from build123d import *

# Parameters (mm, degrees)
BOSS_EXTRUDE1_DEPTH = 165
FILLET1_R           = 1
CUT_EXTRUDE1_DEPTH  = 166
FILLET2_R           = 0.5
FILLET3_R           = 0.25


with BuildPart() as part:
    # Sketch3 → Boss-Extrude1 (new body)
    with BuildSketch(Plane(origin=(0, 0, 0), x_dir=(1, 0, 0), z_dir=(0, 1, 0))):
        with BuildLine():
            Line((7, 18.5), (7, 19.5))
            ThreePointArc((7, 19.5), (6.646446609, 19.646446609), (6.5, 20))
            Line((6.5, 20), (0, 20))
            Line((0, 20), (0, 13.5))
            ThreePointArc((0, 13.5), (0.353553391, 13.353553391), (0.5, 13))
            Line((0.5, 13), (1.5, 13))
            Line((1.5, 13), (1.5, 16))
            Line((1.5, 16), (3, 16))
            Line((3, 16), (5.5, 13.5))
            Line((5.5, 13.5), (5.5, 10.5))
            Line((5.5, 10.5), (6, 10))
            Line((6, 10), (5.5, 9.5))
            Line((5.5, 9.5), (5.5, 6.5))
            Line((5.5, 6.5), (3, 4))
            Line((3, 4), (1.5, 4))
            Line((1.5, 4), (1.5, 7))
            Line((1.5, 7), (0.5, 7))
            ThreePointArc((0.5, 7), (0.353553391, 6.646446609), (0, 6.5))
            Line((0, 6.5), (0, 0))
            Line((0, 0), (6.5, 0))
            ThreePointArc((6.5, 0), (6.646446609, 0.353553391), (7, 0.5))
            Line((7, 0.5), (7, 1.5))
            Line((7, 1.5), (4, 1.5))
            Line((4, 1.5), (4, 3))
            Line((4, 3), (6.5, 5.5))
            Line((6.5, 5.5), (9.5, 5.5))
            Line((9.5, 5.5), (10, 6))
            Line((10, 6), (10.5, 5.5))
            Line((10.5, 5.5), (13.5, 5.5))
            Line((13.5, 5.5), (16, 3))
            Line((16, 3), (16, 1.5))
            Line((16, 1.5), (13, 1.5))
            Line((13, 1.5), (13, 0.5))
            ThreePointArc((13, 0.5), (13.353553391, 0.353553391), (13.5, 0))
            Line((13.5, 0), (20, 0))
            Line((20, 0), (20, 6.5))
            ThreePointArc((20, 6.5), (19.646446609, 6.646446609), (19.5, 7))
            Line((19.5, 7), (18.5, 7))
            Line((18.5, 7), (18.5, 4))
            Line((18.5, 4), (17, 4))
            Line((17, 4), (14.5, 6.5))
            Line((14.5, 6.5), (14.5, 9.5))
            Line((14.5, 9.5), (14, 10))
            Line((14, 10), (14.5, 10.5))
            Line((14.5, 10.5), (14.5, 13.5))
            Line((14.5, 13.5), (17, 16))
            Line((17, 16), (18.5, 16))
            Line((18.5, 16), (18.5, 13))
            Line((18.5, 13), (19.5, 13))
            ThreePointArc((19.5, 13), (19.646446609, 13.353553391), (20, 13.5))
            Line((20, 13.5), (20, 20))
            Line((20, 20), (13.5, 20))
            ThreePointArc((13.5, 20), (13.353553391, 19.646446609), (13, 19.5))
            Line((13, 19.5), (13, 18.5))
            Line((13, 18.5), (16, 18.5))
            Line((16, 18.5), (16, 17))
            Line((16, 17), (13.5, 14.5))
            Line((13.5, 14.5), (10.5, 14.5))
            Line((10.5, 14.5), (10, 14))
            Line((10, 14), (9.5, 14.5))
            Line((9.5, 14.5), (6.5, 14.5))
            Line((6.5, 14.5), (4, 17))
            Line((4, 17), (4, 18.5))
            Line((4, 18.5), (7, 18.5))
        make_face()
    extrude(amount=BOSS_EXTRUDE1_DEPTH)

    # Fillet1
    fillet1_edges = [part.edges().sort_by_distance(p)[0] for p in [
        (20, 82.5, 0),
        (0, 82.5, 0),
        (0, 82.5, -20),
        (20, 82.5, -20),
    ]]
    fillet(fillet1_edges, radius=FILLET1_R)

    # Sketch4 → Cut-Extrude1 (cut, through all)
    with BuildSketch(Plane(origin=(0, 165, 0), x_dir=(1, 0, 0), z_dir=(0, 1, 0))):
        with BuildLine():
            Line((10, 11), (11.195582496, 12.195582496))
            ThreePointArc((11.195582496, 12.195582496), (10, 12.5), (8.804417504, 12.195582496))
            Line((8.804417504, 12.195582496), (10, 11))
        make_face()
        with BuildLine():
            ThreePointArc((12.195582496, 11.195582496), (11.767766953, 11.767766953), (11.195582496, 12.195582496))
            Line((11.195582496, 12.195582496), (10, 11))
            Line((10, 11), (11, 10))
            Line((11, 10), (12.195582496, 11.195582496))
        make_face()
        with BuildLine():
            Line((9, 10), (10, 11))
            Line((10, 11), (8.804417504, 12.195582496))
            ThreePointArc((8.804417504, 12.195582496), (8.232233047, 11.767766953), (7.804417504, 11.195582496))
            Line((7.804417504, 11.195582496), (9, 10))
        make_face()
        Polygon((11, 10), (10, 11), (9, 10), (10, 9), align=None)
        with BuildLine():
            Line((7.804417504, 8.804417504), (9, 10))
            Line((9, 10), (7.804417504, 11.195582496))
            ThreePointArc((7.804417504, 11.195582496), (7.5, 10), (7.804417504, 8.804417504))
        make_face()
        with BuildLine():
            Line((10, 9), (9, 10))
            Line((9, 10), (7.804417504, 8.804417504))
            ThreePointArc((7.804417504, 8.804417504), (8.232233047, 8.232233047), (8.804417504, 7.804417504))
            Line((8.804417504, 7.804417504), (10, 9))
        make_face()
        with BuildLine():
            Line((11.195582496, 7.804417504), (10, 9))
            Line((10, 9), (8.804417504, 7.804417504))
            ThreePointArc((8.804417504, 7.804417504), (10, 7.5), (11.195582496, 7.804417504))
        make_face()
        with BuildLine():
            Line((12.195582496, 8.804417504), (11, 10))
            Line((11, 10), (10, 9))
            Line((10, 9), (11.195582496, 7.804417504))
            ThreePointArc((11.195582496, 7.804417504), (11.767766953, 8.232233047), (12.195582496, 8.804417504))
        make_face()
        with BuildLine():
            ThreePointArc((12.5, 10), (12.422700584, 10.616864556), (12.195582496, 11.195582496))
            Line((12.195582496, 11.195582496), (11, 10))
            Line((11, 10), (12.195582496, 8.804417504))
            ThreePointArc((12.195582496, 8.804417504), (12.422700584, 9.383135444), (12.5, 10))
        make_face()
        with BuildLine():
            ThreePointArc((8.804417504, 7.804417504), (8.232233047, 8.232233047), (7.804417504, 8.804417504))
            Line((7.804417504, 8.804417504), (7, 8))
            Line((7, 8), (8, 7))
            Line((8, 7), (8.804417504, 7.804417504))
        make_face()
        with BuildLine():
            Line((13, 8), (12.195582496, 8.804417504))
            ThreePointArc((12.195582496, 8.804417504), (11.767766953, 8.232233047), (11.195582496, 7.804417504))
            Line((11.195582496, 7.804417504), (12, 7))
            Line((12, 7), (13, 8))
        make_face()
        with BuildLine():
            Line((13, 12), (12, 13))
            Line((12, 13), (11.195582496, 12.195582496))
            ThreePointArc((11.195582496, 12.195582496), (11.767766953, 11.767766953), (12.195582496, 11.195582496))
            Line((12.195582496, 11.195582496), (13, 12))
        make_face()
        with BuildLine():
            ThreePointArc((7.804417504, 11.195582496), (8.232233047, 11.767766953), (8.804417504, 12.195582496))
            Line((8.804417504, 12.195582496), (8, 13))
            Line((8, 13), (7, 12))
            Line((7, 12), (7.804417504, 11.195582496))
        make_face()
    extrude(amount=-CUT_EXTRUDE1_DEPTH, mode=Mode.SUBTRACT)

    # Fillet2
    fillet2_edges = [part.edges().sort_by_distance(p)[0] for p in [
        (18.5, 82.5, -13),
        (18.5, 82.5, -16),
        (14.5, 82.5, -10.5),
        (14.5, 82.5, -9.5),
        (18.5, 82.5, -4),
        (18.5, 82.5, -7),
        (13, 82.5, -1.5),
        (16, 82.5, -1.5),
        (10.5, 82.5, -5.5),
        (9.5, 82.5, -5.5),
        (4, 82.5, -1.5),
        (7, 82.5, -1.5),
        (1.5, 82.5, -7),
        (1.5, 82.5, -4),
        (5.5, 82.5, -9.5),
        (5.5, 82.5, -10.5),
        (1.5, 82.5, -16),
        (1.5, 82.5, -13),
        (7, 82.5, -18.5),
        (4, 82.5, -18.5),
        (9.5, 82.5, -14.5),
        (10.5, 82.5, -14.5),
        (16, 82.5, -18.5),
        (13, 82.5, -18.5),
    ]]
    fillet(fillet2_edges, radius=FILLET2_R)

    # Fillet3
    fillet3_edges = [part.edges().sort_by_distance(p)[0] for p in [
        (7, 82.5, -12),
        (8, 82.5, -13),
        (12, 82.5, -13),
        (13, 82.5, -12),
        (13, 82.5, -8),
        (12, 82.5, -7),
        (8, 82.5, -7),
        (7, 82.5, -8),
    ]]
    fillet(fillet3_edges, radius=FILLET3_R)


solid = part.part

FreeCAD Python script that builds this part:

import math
import FreeCAD as App
import Part
import Sketcher


def edges_at(feature, points):
    """Names of the edges that pass closest to the given points."""
    edges = feature.Shape.Edges
    near = lambda p: min(range(len(edges)), key=lambda i: edges[i].distToShape(Part.Vertex(*p))[0])
    return sorted({f"Edge{near(p) + 1}" for p in points})

doc = App.newDocument("Part")
body = doc.addObject("PartDesign::Body", "Body")

# Sketch on XZ plane
sketch1 = body.newObject("Sketcher::SketchObject", "Sketch")
sketch1.AttachmentSupport = (doc.getObject("XZ_Plane"), [""])
sketch1.MapMode = "FlatFace"
sketch1.addGeometry(Part.LineSegment(App.Vector(7, -18.5, 0), App.Vector(7, -19.5, 0)), False)
sketch1.addGeometry(Part.ArcOfCircle(Part.Circle(App.Vector(7, -20, 0), App.Vector(0, 0, 1), 0.5), math.radians(90), math.radians(180)), False)
sketch1.addGeometry(Part.LineSegment(App.Vector(6.5, -20, 0), App.Vector(0, -20, 0)), False)
sketch1.addGeometry(Part.LineSegment(App.Vector(0, -20, 0), App.Vector(0, -13.5, 0)), False)
sketch1.addGeometry(Part.ArcOfCircle(Part.Circle(App.Vector(0, -13, 0), App.Vector(0, 0, 1), 0.5), math.radians(-90), math.radians(0)), False)
sketch1.addGeometry(Part.LineSegment(App.Vector(0.5, -13, 0), App.Vector(1.5, -13, 0)), False)
sketch1.addGeometry(Part.LineSegment(App.Vector(1.5, -13, 0), App.Vector(1.5, -16, 0)), False)
sketch1.addGeometry(Part.LineSegment(App.Vector(1.5, -16, 0), App.Vector(3, -16, 0)), False)
sketch1.addGeometry(Part.LineSegment(App.Vector(3, -16, 0), App.Vector(5.5, -13.5, 0)), False)
sketch1.addGeometry(Part.LineSegment(App.Vector(5.5, -13.5, 0), App.Vector(5.5, -10.5, 0)), False)
sketch1.addGeometry(Part.LineSegment(App.Vector(5.5, -10.5, 0), App.Vector(6, -10, 0)), False)
sketch1.addGeometry(Part.LineSegment(App.Vector(6, -10, 0), App.Vector(5.5, -9.5, 0)), False)
sketch1.addGeometry(Part.LineSegment(App.Vector(5.5, -9.5, 0), App.Vector(5.5, -6.5, 0)), False)
sketch1.addGeometry(Part.LineSegment(App.Vector(5.5, -6.5, 0), App.Vector(3, -4, 0)), False)
sketch1.addGeometry(Part.LineSegment(App.Vector(3, -4, 0), App.Vector(1.5, -4, 0)), False)
sketch1.addGeometry(Part.LineSegment(App.Vector(1.5, -4, 0), App.Vector(1.5, -7, 0)), False)
sketch1.addGeometry(Part.LineSegment(App.Vector(1.5, -7, 0), App.Vector(0.5, -7, 0)), False)
sketch1.addGeometry(Part.ArcOfCircle(Part.Circle(App.Vector(0, -7, 0), App.Vector(0, 0, 1), 0.5), math.radians(0), math.radians(90)), False)
sketch1.addGeometry(Part.LineSegment(App.Vector(0, -6.5, 0), App.Vector(0, 0, 0)), False)
sketch1.addGeometry(Part.LineSegment(App.Vector(0, 0, 0), App.Vector(6.5, 0, 0)), False)
sketch1.addGeometry(Part.ArcOfCircle(Part.Circle(App.Vector(7, 0, 0), App.Vector(0, 0, 1), 0.5), math.radians(180), math.radians(270)), False)
sketch1.addGeometry(Part.LineSegment(App.Vector(7, -0.5, 0), App.Vector(7, -1.5, 0)), False)
sketch1.addGeometry(Part.LineSegment(App.Vector(7, -1.5, 0), App.Vector(4, -1.5, 0)), False)
sketch1.addGeometry(Part.LineSegment(App.Vector(4, -1.5, 0), App.Vector(4, -3, 0)), False)
sketch1.addGeometry(Part.LineSegment(App.Vector(4, -3, 0), App.Vector(6.5, -5.5, 0)), False)
sketch1.addGeometry(Part.LineSegment(App.Vector(6.5, -5.5, 0), App.Vector(9.5, -5.5, 0)), False)
sketch1.addGeometry(Part.LineSegment(App.Vector(9.5, -5.5, 0), App.Vector(10, -6, 0)), False)
sketch1.addGeometry(Part.LineSegment(App.Vector(10, -6, 0), App.Vector(10.5, -5.5, 0)), False)
sketch1.addGeometry(Part.LineSegment(App.Vector(10.5, -5.5, 0), App.Vector(13.5, -5.5, 0)), False)
sketch1.addGeometry(Part.LineSegment(App.Vector(13.5, -5.5, 0), App.Vector(16, -3, 0)), False)
sketch1.addGeometry(Part.LineSegment(App.Vector(16, -3, 0), App.Vector(16, -1.5, 0)), False)
sketch1.addGeometry(Part.LineSegment(App.Vector(16, -1.5, 0), App.Vector(13, -1.5, 0)), False)
sketch1.addGeometry(Part.LineSegment(App.Vector(13, -1.5, 0), App.Vector(13, -0.5, 0)), False)
sketch1.addGeometry(Part.ArcOfCircle(Part.Circle(App.Vector(13, 0, 0), App.Vector(0, 0, 1), 0.5), math.radians(-90), math.radians(0)), False)
sketch1.addGeometry(Part.LineSegment(App.Vector(13.5, 0, 0), App.Vector(20, 0, 0)), False)
sketch1.addGeometry(Part.LineSegment(App.Vector(20, 0, 0), App.Vector(20, -6.5, 0)), False)
sketch1.addGeometry(Part.ArcOfCircle(Part.Circle(App.Vector(20, -7, 0), App.Vector(0, 0, 1), 0.5), math.radians(90), math.radians(180)), False)
sketch1.addGeometry(Part.LineSegment(App.Vector(19.5, -7, 0), App.Vector(18.5, -7, 0)), False)
sketch1.addGeometry(Part.LineSegment(App.Vector(18.5, -7, 0), App.Vector(18.5, -4, 0)), False)
sketch1.addGeometry(Part.LineSegment(App.Vector(18.5, -4, 0), App.Vector(17, -4, 0)), False)
sketch1.addGeometry(Part.LineSegment(App.Vector(17, -4, 0), App.Vector(14.5, -6.5, 0)), False)
sketch1.addGeometry(Part.LineSegment(App.Vector(14.5, -6.5, 0), App.Vector(14.5, -9.5, 0)), False)
sketch1.addGeometry(Part.LineSegment(App.Vector(14.5, -9.5, 0), App.Vector(14, -10, 0)), False)
sketch1.addGeometry(Part.LineSegment(App.Vector(14, -10, 0), App.Vector(14.5, -10.5, 0)), False)
sketch1.addGeometry(Part.LineSegment(App.Vector(14.5, -10.5, 0), App.Vector(14.5, -13.5, 0)), False)
sketch1.addGeometry(Part.LineSegment(App.Vector(14.5, -13.5, 0), App.Vector(17, -16, 0)), False)
sketch1.addGeometry(Part.LineSegment(App.Vector(17, -16, 0), App.Vector(18.5, -16, 0)), False)
sketch1.addGeometry(Part.LineSegment(App.Vector(18.5, -16, 0), App.Vector(18.5, -13, 0)), False)
sketch1.addGeometry(Part.LineSegment(App.Vector(18.5, -13, 0), App.Vector(19.5, -13, 0)), False)
sketch1.addGeometry(Part.ArcOfCircle(Part.Circle(App.Vector(20, -13, 0), App.Vector(0, 0, 1), 0.5), math.radians(180), math.radians(270)), False)
sketch1.addGeometry(Part.LineSegment(App.Vector(20, -13.5, 0), App.Vector(20, -20, 0)), False)
sketch1.addGeometry(Part.LineSegment(App.Vector(20, -20, 0), App.Vector(13.5, -20, 0)), False)
sketch1.addGeometry(Part.ArcOfCircle(Part.Circle(App.Vector(13, -20, 0), App.Vector(0, 0, 1), 0.5), math.radians(0), math.radians(90)), False)
sketch1.addGeometry(Part.LineSegment(App.Vector(13, -19.5, 0), App.Vector(13, -18.5, 0)), False)
sketch1.addGeometry(Part.LineSegment(App.Vector(13, -18.5, 0), App.Vector(16, -18.5, 0)), False)
sketch1.addGeometry(Part.LineSegment(App.Vector(16, -18.5, 0), App.Vector(16, -17, 0)), False)
sketch1.addGeometry(Part.LineSegment(App.Vector(16, -17, 0), App.Vector(13.5, -14.5, 0)), False)
sketch1.addGeometry(Part.LineSegment(App.Vector(13.5, -14.5, 0), App.Vector(10.5, -14.5, 0)), False)
sketch1.addGeometry(Part.LineSegment(App.Vector(10.5, -14.5, 0), App.Vector(10, -14, 0)), False)
sketch1.addGeometry(Part.LineSegment(App.Vector(10, -14, 0), App.Vector(9.5, -14.5, 0)), False)
sketch1.addGeometry(Part.LineSegment(App.Vector(9.5, -14.5, 0), App.Vector(6.5, -14.5, 0)), False)
sketch1.addGeometry(Part.LineSegment(App.Vector(6.5, -14.5, 0), App.Vector(4, -17, 0)), False)
sketch1.addGeometry(Part.LineSegment(App.Vector(4, -17, 0), App.Vector(4, -18.5, 0)), False)
sketch1.addGeometry(Part.LineSegment(App.Vector(4, -18.5, 0), App.Vector(7, -18.5, 0)), False)
sketch1.addConstraint(Sketcher.Constraint("Coincident", 0, 2, 1, 1))
sketch1.addConstraint(Sketcher.Constraint("Coincident", 1, 2, 2, 1))
sketch1.addConstraint(Sketcher.Constraint("Coincident", 2, 2, 3, 1))
sketch1.addConstraint(Sketcher.Constraint("Coincident", 3, 2, 4, 1))
sketch1.addConstraint(Sketcher.Constraint("Coincident", 4, 2, 5, 1))
sketch1.addConstraint(Sketcher.Constraint("Coincident", 5, 2, 6, 1))
sketch1.addConstraint(Sketcher.Constraint("Coincident", 6, 2, 7, 1))
sketch1.addConstraint(Sketcher.Constraint("Coincident", 7, 2, 8, 1))
sketch1.addConstraint(Sketcher.Constraint("Coincident", 8, 2, 9, 1))
sketch1.addConstraint(Sketcher.Constraint("Coincident", 9, 2, 10, 1))
sketch1.addConstraint(Sketcher.Constraint("Coincident", 10, 2, 11, 1))
sketch1.addConstraint(Sketcher.Constraint("Coincident", 11, 2, 12, 1))
sketch1.addConstraint(Sketcher.Constraint("Coincident", 12, 2, 13, 1))
sketch1.addConstraint(Sketcher.Constraint("Coincident", 13, 2, 14, 1))
sketch1.addConstraint(Sketcher.Constraint("Coincident", 14, 2, 15, 1))
sketch1.addConstraint(Sketcher.Constraint("Coincident", 15, 2, 16, 1))
sketch1.addConstraint(Sketcher.Constraint("Coincident", 16, 2, 17, 1))
sketch1.addConstraint(Sketcher.Constraint("Coincident", 17, 2, 18, 1))
sketch1.addConstraint(Sketcher.Constraint("Coincident", 18, 2, 19, 1))
sketch1.addConstraint(Sketcher.Constraint("Coincident", 19, 2, 20, 1))
sketch1.addConstraint(Sketcher.Constraint("Coincident", 20, 2, 21, 1))
sketch1.addConstraint(Sketcher.Constraint("Coincident", 21, 2, 22, 1))
sketch1.addConstraint(Sketcher.Constraint("Coincident", 22, 2, 23, 1))
sketch1.addConstraint(Sketcher.Constraint("Coincident", 23, 2, 24, 1))
sketch1.addConstraint(Sketcher.Constraint("Coincident", 24, 2, 25, 1))
sketch1.addConstraint(Sketcher.Constraint("Coincident", 25, 2, 26, 1))
sketch1.addConstraint(Sketcher.Constraint("Coincident", 26, 2, 27, 1))
sketch1.addConstraint(Sketcher.Constraint("Coincident", 27, 2, 28, 1))
sketch1.addConstraint(Sketcher.Constraint("Coincident", 28, 2, 29, 1))
sketch1.addConstraint(Sketcher.Constraint("Coincident", 29, 2, 30, 1))
sketch1.addConstraint(Sketcher.Constraint("Coincident", 30, 2, 31, 1))
sketch1.addConstraint(Sketcher.Constraint("Coincident", 31, 2, 32, 1))
sketch1.addConstraint(Sketcher.Constraint("Coincident", 32, 2, 33, 1))
sketch1.addConstraint(Sketcher.Constraint("Coincident", 33, 2, 34, 1))
sketch1.addConstraint(Sketcher.Constraint("Coincident", 34, 2, 35, 1))
sketch1.addConstraint(Sketcher.Constraint("Coincident", 35, 2, 36, 1))
sketch1.addConstraint(Sketcher.Constraint("Coincident", 36, 2, 37, 1))
sketch1.addConstraint(Sketcher.Constraint("Coincident", 37, 2, 38, 1))
sketch1.addConstraint(Sketcher.Constraint("Coincident", 38, 2, 39, 1))
sketch1.addConstraint(Sketcher.Constraint("Coincident", 39, 2, 40, 1))
sketch1.addConstraint(Sketcher.Constraint("Coincident", 40, 2, 41, 1))
sketch1.addConstraint(Sketcher.Constraint("Coincident", 41, 2, 42, 1))
sketch1.addConstraint(Sketcher.Constraint("Coincident", 42, 2, 43, 1))
sketch1.addConstraint(Sketcher.Constraint("Coincident", 43, 2, 44, 1))
sketch1.addConstraint(Sketcher.Constraint("Coincident", 44, 2, 45, 1))
sketch1.addConstraint(Sketcher.Constraint("Coincident", 45, 2, 46, 1))
sketch1.addConstraint(Sketcher.Constraint("Coincident", 46, 2, 47, 1))
sketch1.addConstraint(Sketcher.Constraint("Coincident", 47, 2, 48, 1))
sketch1.addConstraint(Sketcher.Constraint("Coincident", 48, 2, 49, 1))
sketch1.addConstraint(Sketcher.Constraint("Coincident", 49, 2, 50, 1))
sketch1.addConstraint(Sketcher.Constraint("Coincident", 50, 2, 51, 1))
sketch1.addConstraint(Sketcher.Constraint("Coincident", 51, 2, 52, 1))
sketch1.addConstraint(Sketcher.Constraint("Coincident", 52, 2, 53, 1))
sketch1.addConstraint(Sketcher.Constraint("Coincident", 53, 2, 54, 1))
sketch1.addConstraint(Sketcher.Constraint("Coincident", 54, 2, 55, 1))
sketch1.addConstraint(Sketcher.Constraint("Coincident", 55, 2, 56, 1))
sketch1.addConstraint(Sketcher.Constraint("Coincident", 56, 2, 57, 1))
sketch1.addConstraint(Sketcher.Constraint("Coincident", 57, 2, 58, 1))
sketch1.addConstraint(Sketcher.Constraint("Coincident", 58, 2, 59, 1))
sketch1.addConstraint(Sketcher.Constraint("Coincident", 59, 2, 60, 1))
sketch1.addConstraint(Sketcher.Constraint("Coincident", 60, 2, 61, 1))
sketch1.addConstraint(Sketcher.Constraint("Coincident", 61, 2, 62, 1))
sketch1.addConstraint(Sketcher.Constraint("Coincident", 62, 2, 63, 1))
sketch1.addConstraint(Sketcher.Constraint("Coincident", 63, 2, 0, 1))
sketch1.addConstraint(Sketcher.Constraint("Vertical", 0))
sketch1.addConstraint(Sketcher.Constraint("Horizontal", 2))
sketch1.addConstraint(Sketcher.Constraint("Vertical", 3))
sketch1.addConstraint(Sketcher.Constraint("Horizontal", 5))
sketch1.addConstraint(Sketcher.Constraint("Vertical", 6))
sketch1.addConstraint(Sketcher.Constraint("Horizontal", 7))
sketch1.addConstraint(Sketcher.Constraint("Vertical", 9))
sketch1.addConstraint(Sketcher.Constraint("Vertical", 12))
sketch1.addConstraint(Sketcher.Constraint("Horizontal", 14))
sketch1.addConstraint(Sketcher.Constraint("Vertical", 15))
sketch1.addConstraint(Sketcher.Constraint("Horizontal", 16))
sketch1.addConstraint(Sketcher.Constraint("Vertical", 18))
sketch1.addConstraint(Sketcher.Constraint("Horizontal", 19))
sketch1.addConstraint(Sketcher.Constraint("Vertical", 21))
sketch1.addConstraint(Sketcher.Constraint("Horizontal", 22))
sketch1.addConstraint(Sketcher.Constraint("Vertical", 23))
sketch1.addConstraint(Sketcher.Constraint("Horizontal", 25))
sketch1.addConstraint(Sketcher.Constraint("Horizontal", 28))
sketch1.addConstraint(Sketcher.Constraint("Vertical", 30))
sketch1.addConstraint(Sketcher.Constraint("Horizontal", 31))
sketch1.addConstraint(Sketcher.Constraint("Vertical", 32))
sketch1.addConstraint(Sketcher.Constraint("Horizontal", 34))
sketch1.addConstraint(Sketcher.Constraint("Vertical", 35))
sketch1.addConstraint(Sketcher.Constraint("Horizontal", 37))
sketch1.addConstraint(Sketcher.Constraint("Vertical", 38))
sketch1.addConstraint(Sketcher.Constraint("Horizontal", 39))
sketch1.addConstraint(Sketcher.Constraint("Vertical", 41))
sketch1.addConstraint(Sketcher.Constraint("Vertical", 44))
sketch1.addConstraint(Sketcher.Constraint("Horizontal", 46))
sketch1.addConstraint(Sketcher.Constraint("Vertical", 47))
sketch1.addConstraint(Sketcher.Constraint("Horizontal", 48))
sketch1.addConstraint(Sketcher.Constraint("Vertical", 50))
sketch1.addConstraint(Sketcher.Constraint("Horizontal", 51))
sketch1.addConstraint(Sketcher.Constraint("Vertical", 53))
sketch1.addConstraint(Sketcher.Constraint("Horizontal", 54))
sketch1.addConstraint(Sketcher.Constraint("Vertical", 55))
sketch1.addConstraint(Sketcher.Constraint("Horizontal", 57))
sketch1.addConstraint(Sketcher.Constraint("Horizontal", 60))
sketch1.addConstraint(Sketcher.Constraint("Vertical", 62))
sketch1.addConstraint(Sketcher.Constraint("Horizontal", 63))
sketch1.addConstraint(Sketcher.Constraint("Coincident", 18, 2, -1, 1))
sketch1.addConstraint(Sketcher.Constraint("Equal", 1, 4))
sketch1.addConstraint(Sketcher.Constraint("Equal", 4, 17))
sketch1.addConstraint(Sketcher.Constraint("Equal", 17, 20))
sketch1.addConstraint(Sketcher.Constraint("Equal", 20, 33))
sketch1.addConstraint(Sketcher.Constraint("Equal", 33, 36))
sketch1.addConstraint(Sketcher.Constraint("Equal", 36, 49))
sketch1.addConstraint(Sketcher.Constraint("Equal", 49, 52))
sketch1.addConstraint(Sketcher.Constraint("PointOnObject", 4, 3, -2))
sketch1.addConstraint(Sketcher.Constraint("PointOnObject", 17, 3, -2))
sketch1.addConstraint(Sketcher.Constraint("PointOnObject", 20, 3, -1))
sketch1.addConstraint(Sketcher.Constraint("PointOnObject", 33, 3, -1))
sketch1.addConstraint(Sketcher.Constraint("PointOnObject", 2, 2, -2))
sketch1.addConstraint(Sketcher.Constraint("PointOnObject", 33, 2, -1))
sketch1.addConstraint(Sketcher.Constraint("Parallel", 8, 10))
sketch1.addConstraint(Sketcher.Constraint("Perpendicular", 10, 11))
sketch1.addConstraint(Sketcher.Constraint("Parallel", 11, 13))
sketch1.addConstraint(Sketcher.Constraint("Parallel", 13, 24))
sketch1.addConstraint(Sketcher.Constraint("Parallel", 24, 26))
sketch1.addConstraint(Sketcher.Constraint("Perpendicular", 26, 27))
sketch1.addConstraint(Sketcher.Constraint("Parallel", 27, 29))
sketch1.addConstraint(Sketcher.Constraint("Parallel", 29, 40))
sketch1.addConstraint(Sketcher.Constraint("Parallel", 40, 42))
sketch1.addConstraint(Sketcher.Constraint("Perpendicular", 42, 43))
sketch1.addConstraint(Sketcher.Constraint("Parallel", 43, 45))
sketch1.addConstraint(Sketcher.Constraint("Parallel", 45, 56))
sketch1.addConstraint(Sketcher.Constraint("Parallel", 56, 58))
sketch1.addConstraint(Sketcher.Constraint("Perpendicular", 58, 59))
sketch1.addConstraint(Sketcher.Constraint("Parallel", 59, 61))
sketch1.addConstraint(Sketcher.Constraint("Horizontal", 17, 3, 36, 3))
sketch1.addConstraint(Sketcher.Constraint("Horizontal", 4, 3, 49, 3))
sketch1.addConstraint(Sketcher.Constraint("Horizontal", 1, 3, 52, 3))
sketch1.addConstraint(Sketcher.Constraint("Horizontal", 52, 3, 1, 2))
sketch1.addConstraint(Sketcher.Constraint("Horizontal", 49, 3, 4, 2))
sketch1.addConstraint(Sketcher.Constraint("Horizontal", 3, 2, 8, 2))
sketch1.addConstraint(Sketcher.Constraint("Horizontal", 36, 3, 15, 2))
sketch1.addConstraint(Sketcher.Constraint("Horizontal", 12, 2, 17, 2))
sketch1.addConstraint(Sketcher.Constraint("Horizontal", 25, 2, 27, 2))
sketch1.addConstraint(Sketcher.Constraint("Horizontal", 23, 2, 29, 2))
sketch1.addConstraint(Sketcher.Constraint("Horizontal", 22, 2, 30, 2))
sketch1.addConstraint(Sketcher.Constraint("Horizontal", 16, 2, 36, 2))
sketch1.addConstraint(Sketcher.Constraint("Horizontal", 14, 2, 38, 2))
sketch1.addConstraint(Sketcher.Constraint("Horizontal", 35, 2, 40, 2))
sketch1.addConstraint(Sketcher.Constraint("Horizontal", 11, 2, 41, 2))
sketch1.addConstraint(Sketcher.Constraint("Horizontal", 10, 2, 42, 2))
sketch1.addConstraint(Sketcher.Constraint("Horizontal", 9, 2, 43, 2))
sketch1.addConstraint(Sketcher.Constraint("Horizontal", 8, 2, 44, 2))
sketch1.addConstraint(Sketcher.Constraint("Horizontal", 7, 2, 45, 2))
sketch1.addConstraint(Sketcher.Constraint("Horizontal", 5, 2, 47, 2))
sketch1.addConstraint(Sketcher.Constraint("Horizontal", 2, 2, 50, 2))
sketch1.addConstraint(Sketcher.Constraint("Horizontal", 57, 2, 59, 2))
sketch1.addConstraint(Sketcher.Constraint("Horizontal", 55, 2, 61, 2))
sketch1.addConstraint(Sketcher.Constraint("Horizontal", 54, 2, 62, 2))
sketch1.addConstraint(Sketcher.Constraint("Vertical", 1, 3, 20, 3))
sketch1.addConstraint(Sketcher.Constraint("Vertical", 36, 3, 49, 3))
sketch1.addConstraint(Sketcher.Constraint("Vertical", 33, 3, 52, 3))
sketch1.addConstraint(Sketcher.Constraint("Vertical", 20, 3, 0, 2))
sketch1.addConstraint(Sketcher.Constraint("Vertical", 9, 2, 11, 2))
sketch1.addConstraint(Sketcher.Constraint("Vertical", 7, 2, 13, 2))
sketch1.addConstraint(Sketcher.Constraint("Vertical", 6, 2, 14, 2))
sketch1.addConstraint(Sketcher.Constraint("Vertical", 0, 2, 20, 2))
sketch1.addConstraint(Sketcher.Constraint("Vertical", 19, 2, 24, 2))
sketch1.addConstraint(Sketcher.Constraint("Vertical", 52, 3, 31, 2))
sketch1.addConstraint(Sketcher.Constraint("Vertical", 28, 2, 33, 2))
sketch1.addConstraint(Sketcher.Constraint("Vertical", 49, 3, 34, 2))
sketch1.addConstraint(Sketcher.Constraint("Vertical", 41, 2, 43, 2))
sketch1.addConstraint(Sketcher.Constraint("Vertical", 38, 2, 46, 2))
sketch1.addConstraint(Sketcher.Constraint("Vertical", 35, 2, 49, 2))
sketch1.addConstraint(Sketcher.Constraint("Vertical", 32, 2, 52, 2))
sketch1.addConstraint(Sketcher.Constraint("Vertical", 30, 2, 54, 2))
sketch1.addConstraint(Sketcher.Constraint("Vertical", 51, 2, 56, 2))
sketch1.addConstraint(Sketcher.Constraint("Vertical", 27, 2, 57, 2))
sketch1.addConstraint(Sketcher.Constraint("Vertical", 26, 2, 58, 2))
sketch1.addConstraint(Sketcher.Constraint("Vertical", 24, 2, 60, 2))
sketch1.addConstraint(Sketcher.Constraint("Equal", 22, 25))
sketch1.addConstraint(Sketcher.Constraint("Equal", 25, 28))
sketch1.addConstraint(Sketcher.Constraint("Equal", 19, 34))
sketch1.addConstraint(Sketcher.Constraint("Equal", 16, 37))
sketch1.addConstraint(Sketcher.Constraint("Equal", 14, 39))
sketch1.addConstraint(Sketcher.Constraint("Equal", 48, 0))
sketch1.addConstraint(Sketcher.Constraint("Equal", 51, 3))
sketch1.addConstraint(Sketcher.Constraint("Equal", 63, 6))
sketch1.addConstraint(Sketcher.Constraint("Equal", 6, 9))
sketch1.addConstraint(Sketcher.Constraint("Equal", 9, 12))
sketch1.addConstraint(Sketcher.Constraint("Equal", 3, 18))
sketch1.addConstraint(Sketcher.Constraint("Equal", 0, 21))
sketch1.addConstraint(Sketcher.Constraint("Equal", 46, 23))
sketch1.addConstraint(Sketcher.Constraint("Equal", 30, 55))
sketch1.addConstraint(Sketcher.Constraint("Equal", 11, 26))
sketch1.addConstraint(Sketcher.Constraint("Radius", 1, 0.5))
sketch1.addConstraint(Sketcher.Constraint("DistanceX", 5, 1, 5, 2, 1.0))
sketch1.addConstraint(Sketcher.Constraint("DistanceX", 22, 2, 22, 1, 3.0))
sketch1.addConstraint(Sketcher.Constraint("DistanceX", 2, 2, 2, 1, 6.5))
sketch1.addConstraint(Sketcher.Constraint("DistanceX", 7, 1, 7, 2, 1.5))
sketch1.addConstraint(Sketcher.Constraint("DistanceY", 1, 3, -1, 1, 20.0))
pad1 = body.newObject("PartDesign::Pad", "Pad")
pad1.Profile = sketch1
pad1.Length = 165
pad1.Reversed = True
doc.recompute()

fillet = body.newObject("PartDesign::Fillet", "Fillet")
fillet.Base = (pad1, edges_at(pad1, [
    (20, 82.5, 0),
    (0, 82.5, 0),
    (0, 82.5, -20),
    (20, 82.5, -20),
]))
fillet.Radius = 1

# Sketch on XZ plane
sketch2 = body.newObject("Sketcher::SketchObject", "Sketch001")
sketch2.AttachmentSupport = (doc.getObject("XZ_Plane"), [""])
sketch2.MapMode = "FlatFace"
sketch2.AttachmentOffset = App.Placement(App.Vector(0, 0, -165), App.Rotation())
sketch2.addGeometry(Part.ArcOfCircle(Part.Circle(App.Vector(10, -10, 0), App.Vector(0, 0, 1), 2.5), math.radians(-118.57006), math.radians(-61.42994)), False)
sketch2.addGeometry(Part.LineSegment(App.Vector(8.804418, -12.195582, 0), App.Vector(8, -13, 0)), False)
sketch2.addGeometry(Part.LineSegment(App.Vector(8, -13, 0), App.Vector(7, -12, 0)), False)
sketch2.addGeometry(Part.LineSegment(App.Vector(7, -12, 0), App.Vector(7.804418, -11.195582, 0)), False)
sketch2.addGeometry(Part.ArcOfCircle(Part.Circle(App.Vector(10, -10, 0), App.Vector(0, 0, 1), 2.5), math.radians(151.42994), math.radians(208.57006)), False)
sketch2.addGeometry(Part.LineSegment(App.Vector(7.804418, -8.804418, 0), App.Vector(7, -8, 0)), False)
sketch2.addGeometry(Part.LineSegment(App.Vector(7, -8, 0), App.Vector(8, -7, 0)), False)
sketch2.addGeometry(Part.LineSegment(App.Vector(8, -7, 0), App.Vector(8.804418, -7.804418, 0)), False)
sketch2.addGeometry(Part.ArcOfCircle(Part.Circle(App.Vector(10, -10, 0), App.Vector(0, 0, 1), 2.5), math.radians(61.42994), math.radians(118.57006)), False)
sketch2.addGeometry(Part.LineSegment(App.Vector(11.195582, -7.804418, 0), App.Vector(12, -7, 0)), False)
sketch2.addGeometry(Part.LineSegment(App.Vector(12, -7, 0), App.Vector(13, -8, 0)), False)
sketch2.addGeometry(Part.LineSegment(App.Vector(13, -8, 0), App.Vector(12.195582, -8.804418, 0)), False)
sketch2.addGeometry(Part.ArcOfCircle(Part.Circle(App.Vector(10, -10, 0), App.Vector(0, 0, 1), 2.5), math.radians(0), math.radians(28.57006)), False)
sketch2.addGeometry(Part.ArcOfCircle(Part.Circle(App.Vector(10, -10, 0), App.Vector(0, 0, 1), 2.5), math.radians(-28.57006), math.radians(0)), False)
sketch2.addGeometry(Part.LineSegment(App.Vector(12.195582, -11.195582, 0), App.Vector(13, -12, 0)), False)
sketch2.addGeometry(Part.LineSegment(App.Vector(13, -12, 0), App.Vector(12, -13, 0)), False)
sketch2.addGeometry(Part.LineSegment(App.Vector(12, -13, 0), App.Vector(11.195582, -12.195582, 0)), False)
sketch2.addConstraint(Sketcher.Constraint("Coincident", 0, 1, 1, 1))
sketch2.addConstraint(Sketcher.Constraint("Coincident", 1, 2, 2, 1))
sketch2.addConstraint(Sketcher.Constraint("Coincident", 2, 2, 3, 1))
sketch2.addConstraint(Sketcher.Constraint("Coincident", 3, 2, 4, 2))
sketch2.addConstraint(Sketcher.Constraint("Coincident", 4, 1, 5, 1))
sketch2.addConstraint(Sketcher.Constraint("Coincident", 5, 2, 6, 1))
sketch2.addConstraint(Sketcher.Constraint("Coincident", 6, 2, 7, 1))
sketch2.addConstraint(Sketcher.Constraint("Coincident", 7, 2, 8, 2))
sketch2.addConstraint(Sketcher.Constraint("Coincident", 8, 1, 9, 1))
sketch2.addConstraint(Sketcher.Constraint("Coincident", 9, 2, 10, 1))
sketch2.addConstraint(Sketcher.Constraint("Coincident", 10, 2, 11, 1))
sketch2.addConstraint(Sketcher.Constraint("Coincident", 11, 2, 12, 2))
sketch2.addConstraint(Sketcher.Constraint("Tangent", 12, 1, 13, 2))
sketch2.addConstraint(Sketcher.Constraint("Coincident", 13, 1, 14, 1))
sketch2.addConstraint(Sketcher.Constraint("Coincident", 14, 2, 15, 1))
sketch2.addConstraint(Sketcher.Constraint("Coincident", 15, 2, 16, 1))
sketch2.addConstraint(Sketcher.Constraint("Coincident", 16, 2, 0, 2))
sketch2.addConstraint(Sketcher.Constraint("Coincident", 4, 3, 0, 3))
sketch2.addConstraint(Sketcher.Constraint("Coincident", 8, 3, 0, 3))
sketch2.addConstraint(Sketcher.Constraint("Coincident", 12, 3, 0, 3))
sketch2.addConstraint(Sketcher.Constraint("Equal", 0, 4))
sketch2.addConstraint(Sketcher.Constraint("Equal", 4, 8))
sketch2.addConstraint(Sketcher.Constraint("Equal", 8, 12))
sketch2.addConstraint(Sketcher.Constraint("Equal", 12, 13))
sketch2.addConstraint(Sketcher.Constraint("Perpendicular", 1, 2))
sketch2.addConstraint(Sketcher.Constraint("Perpendicular", 2, 3))
sketch2.addConstraint(Sketcher.Constraint("Perpendicular", 3, 5))
sketch2.addConstraint(Sketcher.Constraint("Perpendicular", 5, 6))
sketch2.addConstraint(Sketcher.Constraint("Perpendicular", 6, 7))
sketch2.addConstraint(Sketcher.Constraint("Perpendicular", 7, 9))
sketch2.addConstraint(Sketcher.Constraint("Perpendicular", 9, 10))
sketch2.addConstraint(Sketcher.Constraint("Perpendicular", 10, 11))
sketch2.addConstraint(Sketcher.Constraint("Perpendicular", 11, 14))
sketch2.addConstraint(Sketcher.Constraint("Perpendicular", 14, 15))
sketch2.addConstraint(Sketcher.Constraint("Perpendicular", 15, 16))
sketch2.addConstraint(Sketcher.Constraint("Horizontal", 7, 2, 8, 1))
sketch2.addConstraint(Sketcher.Constraint("Horizontal", 6, 2, 9, 2))
sketch2.addConstraint(Sketcher.Constraint("Horizontal", 5, 2, 10, 2))
sketch2.addConstraint(Sketcher.Constraint("Horizontal", 4, 1, 11, 2))
sketch2.addConstraint(Sketcher.Constraint("Horizontal", 13, 3, 12, 1))
sketch2.addConstraint(Sketcher.Constraint("Horizontal", 3, 2, 13, 1))
sketch2.addConstraint(Sketcher.Constraint("Horizontal", 2, 2, 14, 2))
sketch2.addConstraint(Sketcher.Constraint("Horizontal", 1, 2, 15, 2))
sketch2.addConstraint(Sketcher.Constraint("Vertical", 3, 2, 4, 1))
sketch2.addConstraint(Sketcher.Constraint("Vertical", 2, 2, 5, 2))
sketch2.addConstraint(Sketcher.Constraint("Vertical", 1, 2, 6, 2))
sketch2.addConstraint(Sketcher.Constraint("Equal", 1, 3))
sketch2.addConstraint(Sketcher.Constraint("Radius", 0, 2.5))
sketch2.addConstraint(Sketcher.Constraint("DistanceX", -1, 1, 0, 3, 10.0))
sketch2.addConstraint(Sketcher.Constraint("DistanceY", 0, 3, -1, 1, 10.0))
sketch2.addConstraint(Sketcher.Constraint("DistanceX", -1, 1, 1, 2, 8.0))
sketch2.addConstraint(Sketcher.Constraint("DistanceY", 1, 2, -1, 1, 13.0))
pocket1 = body.newObject("PartDesign::Pocket", "Pocket")
pocket1.Profile = sketch2
pocket1.Type = "ThroughAll"
pocket1.Reversed = True
doc.recompute()

fillet2 = body.newObject("PartDesign::Fillet", "Fillet001")
fillet2.Base = (pocket1, edges_at(pocket1, [
    (18.5, 82.5, -13),
    (18.5, 82.5, -16),
    (14.5, 82.5, -10.5),
    (14.5, 82.5, -9.5),
    (18.5, 82.5, -4),
    (18.5, 82.5, -7),
    (13, 82.5, -1.5),
    (16, 82.5, -1.5),
    (10.5, 82.5, -5.5),
    (9.5, 82.5, -5.5),
    (4, 82.5, -1.5),
    (7, 82.5, -1.5),
    (1.5, 82.5, -7),
    (1.5, 82.5, -4),
    (5.5, 82.5, -9.5),
    (5.5, 82.5, -10.5),
    (1.5, 82.5, -16),
    (1.5, 82.5, -13),
    (7, 82.5, -18.5),
    (4, 82.5, -18.5),
    (9.5, 82.5, -14.5),
    (10.5, 82.5, -14.5),
    (16, 82.5, -18.5),
    (13, 82.5, -18.5),
]))
fillet2.Radius = 0.5
doc.recompute()

fillet3 = body.newObject("PartDesign::Fillet", "Fillet002")
fillet3.Base = (fillet2, edges_at(fillet2, [
    (7, 82.5, -12),
    (8, 82.5, -13),
    (12, 82.5, -13),
    (13, 82.5, -12),
    (13, 82.5, -8),
    (12, 82.5, -7),
    (8, 82.5, -7),
    (7, 82.5, -8),
]))
fillet3.Radius = 0.25

doc.recompute()
